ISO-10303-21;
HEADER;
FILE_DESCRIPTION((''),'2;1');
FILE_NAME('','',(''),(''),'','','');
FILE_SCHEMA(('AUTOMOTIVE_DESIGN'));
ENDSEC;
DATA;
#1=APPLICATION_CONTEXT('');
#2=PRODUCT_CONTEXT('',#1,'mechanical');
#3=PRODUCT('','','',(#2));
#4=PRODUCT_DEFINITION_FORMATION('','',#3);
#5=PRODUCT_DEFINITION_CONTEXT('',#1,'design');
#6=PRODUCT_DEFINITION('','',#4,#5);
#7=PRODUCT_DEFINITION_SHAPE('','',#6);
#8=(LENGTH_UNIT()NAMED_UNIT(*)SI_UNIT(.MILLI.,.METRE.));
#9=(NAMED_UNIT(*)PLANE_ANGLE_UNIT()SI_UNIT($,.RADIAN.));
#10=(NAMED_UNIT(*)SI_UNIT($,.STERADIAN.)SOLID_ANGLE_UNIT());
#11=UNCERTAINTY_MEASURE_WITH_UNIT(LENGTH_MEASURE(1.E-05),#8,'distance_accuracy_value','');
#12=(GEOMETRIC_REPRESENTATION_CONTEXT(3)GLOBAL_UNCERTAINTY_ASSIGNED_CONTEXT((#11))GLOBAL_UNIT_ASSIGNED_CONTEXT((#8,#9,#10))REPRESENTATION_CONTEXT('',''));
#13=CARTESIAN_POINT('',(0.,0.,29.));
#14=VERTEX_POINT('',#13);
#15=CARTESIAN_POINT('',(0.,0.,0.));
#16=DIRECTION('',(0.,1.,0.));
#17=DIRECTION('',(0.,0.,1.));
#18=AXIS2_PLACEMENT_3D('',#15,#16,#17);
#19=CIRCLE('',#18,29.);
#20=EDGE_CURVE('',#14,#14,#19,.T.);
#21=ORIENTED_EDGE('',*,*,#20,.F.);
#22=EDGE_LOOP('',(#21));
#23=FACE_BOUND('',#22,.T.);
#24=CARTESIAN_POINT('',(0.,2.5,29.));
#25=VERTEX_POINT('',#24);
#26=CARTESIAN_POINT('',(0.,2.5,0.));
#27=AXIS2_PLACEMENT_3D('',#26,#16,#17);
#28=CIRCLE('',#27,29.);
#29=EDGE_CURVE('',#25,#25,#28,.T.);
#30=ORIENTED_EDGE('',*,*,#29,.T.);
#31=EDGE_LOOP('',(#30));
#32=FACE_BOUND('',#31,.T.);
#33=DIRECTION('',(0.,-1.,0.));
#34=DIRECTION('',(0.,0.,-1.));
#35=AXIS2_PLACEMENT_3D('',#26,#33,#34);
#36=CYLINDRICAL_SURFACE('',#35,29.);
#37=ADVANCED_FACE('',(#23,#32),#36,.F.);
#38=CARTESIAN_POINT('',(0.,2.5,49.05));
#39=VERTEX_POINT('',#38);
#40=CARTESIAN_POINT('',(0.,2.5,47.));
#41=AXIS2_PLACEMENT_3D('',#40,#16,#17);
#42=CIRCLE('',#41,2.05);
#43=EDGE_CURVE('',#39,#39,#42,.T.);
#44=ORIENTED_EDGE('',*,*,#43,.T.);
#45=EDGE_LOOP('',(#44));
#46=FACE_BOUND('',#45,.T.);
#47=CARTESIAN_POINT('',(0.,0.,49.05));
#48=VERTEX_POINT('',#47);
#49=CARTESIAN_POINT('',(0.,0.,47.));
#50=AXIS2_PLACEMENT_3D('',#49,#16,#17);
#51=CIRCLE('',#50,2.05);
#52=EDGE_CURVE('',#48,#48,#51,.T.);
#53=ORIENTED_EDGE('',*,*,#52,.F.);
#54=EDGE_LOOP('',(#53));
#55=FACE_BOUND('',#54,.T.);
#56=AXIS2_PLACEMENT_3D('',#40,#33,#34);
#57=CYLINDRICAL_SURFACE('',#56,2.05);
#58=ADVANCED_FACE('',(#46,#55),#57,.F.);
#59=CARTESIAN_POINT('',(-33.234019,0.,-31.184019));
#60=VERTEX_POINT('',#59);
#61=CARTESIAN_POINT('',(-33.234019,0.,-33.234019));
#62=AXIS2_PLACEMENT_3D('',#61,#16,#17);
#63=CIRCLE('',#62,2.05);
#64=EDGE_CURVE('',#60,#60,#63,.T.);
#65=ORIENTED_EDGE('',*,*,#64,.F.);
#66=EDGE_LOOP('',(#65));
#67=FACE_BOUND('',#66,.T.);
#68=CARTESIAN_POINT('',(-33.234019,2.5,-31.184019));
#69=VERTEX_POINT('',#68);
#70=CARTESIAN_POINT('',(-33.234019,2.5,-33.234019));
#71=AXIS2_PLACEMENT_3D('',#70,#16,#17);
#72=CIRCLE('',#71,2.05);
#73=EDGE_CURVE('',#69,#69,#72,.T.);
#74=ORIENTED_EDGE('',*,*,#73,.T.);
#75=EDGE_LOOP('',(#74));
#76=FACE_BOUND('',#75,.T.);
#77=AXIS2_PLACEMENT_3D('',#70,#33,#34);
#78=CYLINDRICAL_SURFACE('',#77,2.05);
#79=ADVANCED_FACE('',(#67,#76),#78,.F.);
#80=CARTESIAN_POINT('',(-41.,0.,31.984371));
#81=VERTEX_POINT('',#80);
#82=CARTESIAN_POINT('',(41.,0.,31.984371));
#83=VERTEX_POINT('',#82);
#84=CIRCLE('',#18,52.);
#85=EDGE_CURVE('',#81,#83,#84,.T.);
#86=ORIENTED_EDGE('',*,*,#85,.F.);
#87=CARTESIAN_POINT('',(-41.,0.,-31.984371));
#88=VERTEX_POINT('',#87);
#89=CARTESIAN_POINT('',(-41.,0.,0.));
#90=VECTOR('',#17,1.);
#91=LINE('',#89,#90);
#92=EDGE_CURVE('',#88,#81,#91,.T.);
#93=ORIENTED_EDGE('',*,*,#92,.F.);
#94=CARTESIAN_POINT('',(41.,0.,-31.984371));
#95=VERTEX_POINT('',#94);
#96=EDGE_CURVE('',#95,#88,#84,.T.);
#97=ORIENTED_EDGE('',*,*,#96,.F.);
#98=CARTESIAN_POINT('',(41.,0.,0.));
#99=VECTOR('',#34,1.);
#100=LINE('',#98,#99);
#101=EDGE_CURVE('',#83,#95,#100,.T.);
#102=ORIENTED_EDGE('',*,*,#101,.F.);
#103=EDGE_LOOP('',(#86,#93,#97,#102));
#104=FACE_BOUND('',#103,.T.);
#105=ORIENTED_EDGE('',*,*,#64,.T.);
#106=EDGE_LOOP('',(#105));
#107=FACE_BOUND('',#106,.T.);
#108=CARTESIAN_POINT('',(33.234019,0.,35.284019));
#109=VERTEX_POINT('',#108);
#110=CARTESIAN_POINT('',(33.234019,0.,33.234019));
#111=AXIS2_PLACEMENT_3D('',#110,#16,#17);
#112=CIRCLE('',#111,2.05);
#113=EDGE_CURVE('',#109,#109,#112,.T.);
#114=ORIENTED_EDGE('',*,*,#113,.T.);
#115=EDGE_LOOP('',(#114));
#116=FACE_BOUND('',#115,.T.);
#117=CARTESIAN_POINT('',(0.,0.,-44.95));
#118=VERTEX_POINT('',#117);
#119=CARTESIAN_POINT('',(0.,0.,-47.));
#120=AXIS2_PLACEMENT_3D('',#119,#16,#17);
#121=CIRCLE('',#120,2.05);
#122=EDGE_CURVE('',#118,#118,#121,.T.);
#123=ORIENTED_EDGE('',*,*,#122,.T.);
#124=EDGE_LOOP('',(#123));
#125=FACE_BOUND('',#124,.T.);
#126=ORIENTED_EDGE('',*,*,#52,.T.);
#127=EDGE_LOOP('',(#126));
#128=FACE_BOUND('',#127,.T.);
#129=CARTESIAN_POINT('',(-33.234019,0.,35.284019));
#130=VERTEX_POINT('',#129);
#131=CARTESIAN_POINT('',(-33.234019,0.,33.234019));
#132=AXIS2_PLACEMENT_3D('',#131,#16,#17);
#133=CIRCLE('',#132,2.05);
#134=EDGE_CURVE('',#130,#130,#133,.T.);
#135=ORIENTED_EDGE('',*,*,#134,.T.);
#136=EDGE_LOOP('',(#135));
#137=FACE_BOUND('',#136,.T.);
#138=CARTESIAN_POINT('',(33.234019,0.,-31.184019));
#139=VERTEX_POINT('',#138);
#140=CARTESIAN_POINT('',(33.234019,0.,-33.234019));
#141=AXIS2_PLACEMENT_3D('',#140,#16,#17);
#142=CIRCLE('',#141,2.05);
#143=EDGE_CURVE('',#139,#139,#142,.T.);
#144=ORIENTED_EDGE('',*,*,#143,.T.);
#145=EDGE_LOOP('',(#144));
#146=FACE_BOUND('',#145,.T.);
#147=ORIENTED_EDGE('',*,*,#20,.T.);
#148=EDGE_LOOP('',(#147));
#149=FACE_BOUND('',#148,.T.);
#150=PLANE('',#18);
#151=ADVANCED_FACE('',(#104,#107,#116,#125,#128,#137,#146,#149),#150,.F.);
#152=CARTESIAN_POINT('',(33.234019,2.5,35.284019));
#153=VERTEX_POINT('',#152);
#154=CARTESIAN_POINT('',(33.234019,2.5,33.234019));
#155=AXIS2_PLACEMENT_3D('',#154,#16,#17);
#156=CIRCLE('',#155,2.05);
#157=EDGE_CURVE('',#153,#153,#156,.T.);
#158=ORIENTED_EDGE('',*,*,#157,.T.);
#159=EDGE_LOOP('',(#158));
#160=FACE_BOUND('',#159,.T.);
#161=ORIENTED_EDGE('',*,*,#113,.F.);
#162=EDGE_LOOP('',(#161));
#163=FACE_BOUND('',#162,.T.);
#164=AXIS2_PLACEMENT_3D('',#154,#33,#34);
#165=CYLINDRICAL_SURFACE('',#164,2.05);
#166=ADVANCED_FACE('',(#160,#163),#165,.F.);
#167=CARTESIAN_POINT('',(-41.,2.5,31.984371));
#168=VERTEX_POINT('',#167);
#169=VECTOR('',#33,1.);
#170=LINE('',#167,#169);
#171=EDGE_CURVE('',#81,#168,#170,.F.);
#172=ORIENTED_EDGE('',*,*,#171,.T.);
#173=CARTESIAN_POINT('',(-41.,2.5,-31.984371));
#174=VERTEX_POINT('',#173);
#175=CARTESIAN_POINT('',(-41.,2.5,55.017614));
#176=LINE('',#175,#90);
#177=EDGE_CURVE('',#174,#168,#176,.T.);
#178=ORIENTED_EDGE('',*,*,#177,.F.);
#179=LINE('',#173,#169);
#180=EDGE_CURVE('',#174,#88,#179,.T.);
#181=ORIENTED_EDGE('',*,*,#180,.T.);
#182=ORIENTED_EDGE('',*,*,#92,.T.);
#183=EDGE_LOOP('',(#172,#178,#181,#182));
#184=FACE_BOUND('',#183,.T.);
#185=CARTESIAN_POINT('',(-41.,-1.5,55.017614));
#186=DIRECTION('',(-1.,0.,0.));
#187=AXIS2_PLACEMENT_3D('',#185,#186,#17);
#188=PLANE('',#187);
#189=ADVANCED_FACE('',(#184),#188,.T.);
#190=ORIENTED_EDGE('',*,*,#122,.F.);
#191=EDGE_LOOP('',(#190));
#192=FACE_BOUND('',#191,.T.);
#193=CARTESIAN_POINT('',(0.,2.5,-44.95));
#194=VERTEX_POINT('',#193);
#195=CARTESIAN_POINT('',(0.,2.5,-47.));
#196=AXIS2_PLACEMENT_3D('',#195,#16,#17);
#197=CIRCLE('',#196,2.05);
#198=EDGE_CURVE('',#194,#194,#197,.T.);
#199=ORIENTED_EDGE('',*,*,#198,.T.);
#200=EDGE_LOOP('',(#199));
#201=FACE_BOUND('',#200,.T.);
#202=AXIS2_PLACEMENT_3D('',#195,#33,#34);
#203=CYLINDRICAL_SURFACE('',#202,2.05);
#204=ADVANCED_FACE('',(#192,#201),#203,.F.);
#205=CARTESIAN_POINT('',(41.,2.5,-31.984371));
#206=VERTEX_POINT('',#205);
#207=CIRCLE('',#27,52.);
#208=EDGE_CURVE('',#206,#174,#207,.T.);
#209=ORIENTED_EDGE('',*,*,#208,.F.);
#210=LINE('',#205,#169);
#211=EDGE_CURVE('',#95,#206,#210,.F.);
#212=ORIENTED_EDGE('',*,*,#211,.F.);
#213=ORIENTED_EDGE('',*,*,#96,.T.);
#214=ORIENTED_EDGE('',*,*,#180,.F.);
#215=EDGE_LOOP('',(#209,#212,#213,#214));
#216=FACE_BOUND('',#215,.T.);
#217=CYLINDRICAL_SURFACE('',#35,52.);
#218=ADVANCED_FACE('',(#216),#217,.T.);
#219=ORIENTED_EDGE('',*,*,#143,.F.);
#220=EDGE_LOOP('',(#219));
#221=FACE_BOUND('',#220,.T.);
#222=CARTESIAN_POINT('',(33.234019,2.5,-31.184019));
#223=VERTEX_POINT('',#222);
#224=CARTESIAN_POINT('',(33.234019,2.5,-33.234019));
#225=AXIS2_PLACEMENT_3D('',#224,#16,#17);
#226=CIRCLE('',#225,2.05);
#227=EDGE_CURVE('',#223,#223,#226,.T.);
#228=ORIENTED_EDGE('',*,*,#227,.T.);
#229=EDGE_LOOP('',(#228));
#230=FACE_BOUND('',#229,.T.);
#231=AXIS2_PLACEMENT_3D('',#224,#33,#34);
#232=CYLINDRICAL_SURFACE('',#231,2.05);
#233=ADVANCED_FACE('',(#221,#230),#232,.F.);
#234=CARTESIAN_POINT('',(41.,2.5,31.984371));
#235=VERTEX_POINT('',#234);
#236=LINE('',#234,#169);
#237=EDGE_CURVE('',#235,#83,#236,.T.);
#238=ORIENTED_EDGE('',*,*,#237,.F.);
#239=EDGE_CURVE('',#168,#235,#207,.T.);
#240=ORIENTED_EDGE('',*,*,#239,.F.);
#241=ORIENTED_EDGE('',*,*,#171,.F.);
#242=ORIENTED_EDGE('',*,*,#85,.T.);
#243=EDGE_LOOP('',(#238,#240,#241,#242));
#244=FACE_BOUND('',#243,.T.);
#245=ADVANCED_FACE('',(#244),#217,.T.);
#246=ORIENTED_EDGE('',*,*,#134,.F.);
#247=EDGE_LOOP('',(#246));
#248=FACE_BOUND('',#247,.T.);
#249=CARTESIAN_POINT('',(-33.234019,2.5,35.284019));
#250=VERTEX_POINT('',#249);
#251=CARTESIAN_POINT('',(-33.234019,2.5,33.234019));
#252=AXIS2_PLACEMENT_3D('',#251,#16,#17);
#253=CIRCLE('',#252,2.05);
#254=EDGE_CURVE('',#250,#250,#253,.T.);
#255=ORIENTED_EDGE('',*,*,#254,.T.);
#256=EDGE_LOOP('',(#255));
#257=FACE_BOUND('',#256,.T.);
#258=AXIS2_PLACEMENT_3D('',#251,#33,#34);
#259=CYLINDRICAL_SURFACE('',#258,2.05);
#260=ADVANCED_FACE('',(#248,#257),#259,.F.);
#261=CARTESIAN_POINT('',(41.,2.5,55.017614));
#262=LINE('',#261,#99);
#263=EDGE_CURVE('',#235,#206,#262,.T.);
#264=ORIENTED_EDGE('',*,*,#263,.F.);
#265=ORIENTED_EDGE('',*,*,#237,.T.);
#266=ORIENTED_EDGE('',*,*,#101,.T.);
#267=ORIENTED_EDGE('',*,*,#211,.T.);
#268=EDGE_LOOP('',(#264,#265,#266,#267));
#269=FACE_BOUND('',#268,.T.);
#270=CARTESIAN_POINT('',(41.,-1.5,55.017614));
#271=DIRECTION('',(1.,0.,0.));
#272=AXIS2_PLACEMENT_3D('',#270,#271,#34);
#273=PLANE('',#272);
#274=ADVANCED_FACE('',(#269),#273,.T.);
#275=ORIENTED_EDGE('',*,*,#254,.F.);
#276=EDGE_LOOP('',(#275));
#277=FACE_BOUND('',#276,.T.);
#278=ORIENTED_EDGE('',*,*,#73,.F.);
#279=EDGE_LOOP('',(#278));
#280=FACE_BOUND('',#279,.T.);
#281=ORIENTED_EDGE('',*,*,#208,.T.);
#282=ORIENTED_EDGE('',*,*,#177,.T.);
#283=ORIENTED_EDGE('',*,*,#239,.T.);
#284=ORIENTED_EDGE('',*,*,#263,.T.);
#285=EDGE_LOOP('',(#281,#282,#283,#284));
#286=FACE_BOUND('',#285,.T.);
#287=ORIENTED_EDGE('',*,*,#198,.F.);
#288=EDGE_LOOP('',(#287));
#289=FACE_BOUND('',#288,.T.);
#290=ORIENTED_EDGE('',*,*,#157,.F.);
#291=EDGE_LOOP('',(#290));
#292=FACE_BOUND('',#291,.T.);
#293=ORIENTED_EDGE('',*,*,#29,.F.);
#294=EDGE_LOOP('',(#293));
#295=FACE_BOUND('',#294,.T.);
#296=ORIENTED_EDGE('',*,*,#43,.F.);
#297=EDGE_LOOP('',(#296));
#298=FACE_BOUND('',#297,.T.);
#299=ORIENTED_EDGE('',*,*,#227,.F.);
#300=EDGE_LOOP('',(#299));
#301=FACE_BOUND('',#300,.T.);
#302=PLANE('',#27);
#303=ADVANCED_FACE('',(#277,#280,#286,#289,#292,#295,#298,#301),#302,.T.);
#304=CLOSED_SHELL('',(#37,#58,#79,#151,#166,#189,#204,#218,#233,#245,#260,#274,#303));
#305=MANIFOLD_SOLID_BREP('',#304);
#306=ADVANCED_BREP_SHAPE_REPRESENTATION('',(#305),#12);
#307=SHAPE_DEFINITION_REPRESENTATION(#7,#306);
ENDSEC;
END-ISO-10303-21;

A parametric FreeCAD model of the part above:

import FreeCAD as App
import Part
import Sketcher

V = App.Vector
Q = App.Units.Quantity

doc = App.newDocument("Part")
body = doc.addObject("PartDesign::Body", "Body")

# Sketch on XZ plane
sketch1 = body.newObject("Sketcher::SketchObject", "Sketch")
sketch1.AttachmentSupport = (doc.getObject("XZ_Plane"), [""])
sketch1.MapMode = "FlatFace"
sketch1.addGeometry([
    Part.Circle(V(0, 0, 0), V(0, 0, 1), 52),  # 0
    Part.Circle(V(-33.2, -33.2, 0), V(0, 0, 1), 2),  # 1
    Part.Circle(V(0, -47, 0), V(0, 0, 1), 2),  # 2
    Part.Circle(V(-47, 0, 0), V(0, 0, 1), 2),  # 3
    Part.Circle(V(-33.2, 33.2, 0), V(0, 0, 1), 2),  # 4
    Part.Circle(V(33.2, -33.2, 0), V(0, 0, 1), 2),  # 5
    Part.Circle(V(47, 0, 0), V(0, 0, 1), 2),  # 6
    Part.Circle(V(0, 0, 0), V(0, 0, 1), 29),  # 7
    Part.Circle(V(0, 47, 0), V(0, 0, 1), 2),  # 8
    Part.Circle(V(33.2, 33.2, 0), V(0, 0, 1), 2),  # 9
], False)
sketch1.addConstraint([
    Sketcher.Constraint("Coincident", 0, 3, -1, 1),
    Sketcher.Constraint("Coincident", 7, 3, -1, 1),
    Sketcher.Constraint("Equal", 1, 2),
    Sketcher.Constraint("Equal", 2, 3),
    Sketcher.Constraint("Equal", 3, 4),
    Sketcher.Constraint("Equal", 4, 5),
    Sketcher.Constraint("Equal", 5, 6),
    Sketcher.Constraint("Equal", 6, 8),
    Sketcher.Constraint("Equal", 8, 9),
    Sketcher.Constraint("Symmetric", 4, 3, 5, 3, -1, 1),
    Sketcher.Constraint("Symmetric", 3, 3, 6, 3, -1, 1),
    Sketcher.Constraint("Symmetric", 2, 3, 8, 3, -1, 1),
    Sketcher.Constraint("Symmetric", 1, 3, 9, 3, -1, 1),
    Sketcher.Constraint("Symmetric", 1, 3, 5, 3, -2),
    Sketcher.Constraint("PointOnObject", 2, 3, -2),
    Sketcher.Constraint("PointOnObject", 3, 3, -1),
    Sketcher.Constraint("Diameter", 0, Q("104 mm")),
    Sketcher.Constraint("Diameter", 7, Q("58 mm")),
    Sketcher.Constraint("Diameter", 1, Q("4.1 mm")),
    Sketcher.Constraint("DistanceY", 2, 3, -1, 1, Q("47 mm")),
    Sketcher.Constraint("DistanceX", 3, 3, -1, 1, Q("47 mm")),
    Sketcher.Constraint("DistanceX", 1, 3, -1, 1, Q("33.234019 mm")),
    Sketcher.Constraint("DistanceY", 1, 3, -1, 1, Q("33.234019 mm")),
])
pad1 = body.newObject("PartDesign::Pad", "Pad")
pad1.Profile = sketch1
pad1.Length = 2.5
pad1.Reversed = True

# Sketch on XZ plane
sketch2 = body.newObject("Sketcher::SketchObject", "Sketch001")
sketch2.AttachmentSupport = (doc.getObject("XZ_Plane"), [""])
sketch2.MapMode = "FlatFace"
sketch2.AttachmentOffset = App.Placement(V(0, 0, -2.5), App.Rotation())
sketch2.addGeometry([
    Part.LineSegment(V(-91, -105, 0), V(-91, 105, 0)),  # 0
    Part.LineSegment(V(-91, 105, 0), V(91, 105, 0)),  # 1
    Part.LineSegment(V(91, 105, 0), V(91, -105, 0)),  # 2
    Part.LineSegment(V(91, -105, 0), V(-91, -105, 0)),  # 3
    Part.LineSegment(V(41, 55, 0), V(-41, 55, 0)),  # 4
    Part.LineSegment(V(-41, 55, 0), V(-41, -55, 0)),  # 5
    Part.LineSegment(V(-41, -55, 0), V(41, -55, 0)),  # 6
    Part.LineSegment(V(41, -55, 0), V(41, 55, 0)),  # 7
], False)
sketch2.addConstraint([
    Sketcher.Constraint("Coincident", 0, 2, 1, 1),
    Sketcher.Constraint("Coincident", 1, 2, 2, 1),
    Sketcher.Constraint("Coincident", 2, 2, 3, 1),
    Sketcher.Constraint("Coincident", 3, 2, 0, 1),
    Sketcher.Constraint("Coincident", 4, 2, 5, 1),
    Sketcher.Constraint("Coincident", 5, 2, 6, 1),
    Sketcher.Constraint("Coincident", 6, 2, 7, 1),
    Sketcher.Constraint("Coincident", 7, 2, 4, 1),
    Sketcher.Constraint("Vertical", 0),
    Sketcher.Constraint("Horizontal", 1),
    Sketcher.Constraint("Vertical", 2),
    Sketcher.Constraint("Horizontal", 3),
    Sketcher.Constraint("Horizontal", 4),
    Sketcher.Constraint("Vertical", 5),
    Sketcher.Constraint("Horizontal", 6),
    Sketcher.Constraint("Vertical", 7),
    Sketcher.Constraint("Symmetric", 0, 2, 2, 2, -1, 1),
    Sketcher.Constraint("Symmetric", 4, 2, 6, 2, -1, 1),
    Sketcher.Constraint("DistanceX", 1, 1, 1, 2, Q("182 mm")),
    Sketcher.Constraint("DistanceX", 4, 2, 4, 1, Q("82 mm")),
    Sketcher.Constraint("DistanceY", 4, 2, 0, 2, Q("50 mm")),
    Sketcher.Constraint("DistanceY", 0, 1, 0, 2, Q("210.035227 mm")),
])
pocket1 = body.newObject("PartDesign::Pocket", "Pocket")
pocket1.Profile = sketch2
pocket1.Length = 4
pocket1.Reversed = True

doc.recompute()
